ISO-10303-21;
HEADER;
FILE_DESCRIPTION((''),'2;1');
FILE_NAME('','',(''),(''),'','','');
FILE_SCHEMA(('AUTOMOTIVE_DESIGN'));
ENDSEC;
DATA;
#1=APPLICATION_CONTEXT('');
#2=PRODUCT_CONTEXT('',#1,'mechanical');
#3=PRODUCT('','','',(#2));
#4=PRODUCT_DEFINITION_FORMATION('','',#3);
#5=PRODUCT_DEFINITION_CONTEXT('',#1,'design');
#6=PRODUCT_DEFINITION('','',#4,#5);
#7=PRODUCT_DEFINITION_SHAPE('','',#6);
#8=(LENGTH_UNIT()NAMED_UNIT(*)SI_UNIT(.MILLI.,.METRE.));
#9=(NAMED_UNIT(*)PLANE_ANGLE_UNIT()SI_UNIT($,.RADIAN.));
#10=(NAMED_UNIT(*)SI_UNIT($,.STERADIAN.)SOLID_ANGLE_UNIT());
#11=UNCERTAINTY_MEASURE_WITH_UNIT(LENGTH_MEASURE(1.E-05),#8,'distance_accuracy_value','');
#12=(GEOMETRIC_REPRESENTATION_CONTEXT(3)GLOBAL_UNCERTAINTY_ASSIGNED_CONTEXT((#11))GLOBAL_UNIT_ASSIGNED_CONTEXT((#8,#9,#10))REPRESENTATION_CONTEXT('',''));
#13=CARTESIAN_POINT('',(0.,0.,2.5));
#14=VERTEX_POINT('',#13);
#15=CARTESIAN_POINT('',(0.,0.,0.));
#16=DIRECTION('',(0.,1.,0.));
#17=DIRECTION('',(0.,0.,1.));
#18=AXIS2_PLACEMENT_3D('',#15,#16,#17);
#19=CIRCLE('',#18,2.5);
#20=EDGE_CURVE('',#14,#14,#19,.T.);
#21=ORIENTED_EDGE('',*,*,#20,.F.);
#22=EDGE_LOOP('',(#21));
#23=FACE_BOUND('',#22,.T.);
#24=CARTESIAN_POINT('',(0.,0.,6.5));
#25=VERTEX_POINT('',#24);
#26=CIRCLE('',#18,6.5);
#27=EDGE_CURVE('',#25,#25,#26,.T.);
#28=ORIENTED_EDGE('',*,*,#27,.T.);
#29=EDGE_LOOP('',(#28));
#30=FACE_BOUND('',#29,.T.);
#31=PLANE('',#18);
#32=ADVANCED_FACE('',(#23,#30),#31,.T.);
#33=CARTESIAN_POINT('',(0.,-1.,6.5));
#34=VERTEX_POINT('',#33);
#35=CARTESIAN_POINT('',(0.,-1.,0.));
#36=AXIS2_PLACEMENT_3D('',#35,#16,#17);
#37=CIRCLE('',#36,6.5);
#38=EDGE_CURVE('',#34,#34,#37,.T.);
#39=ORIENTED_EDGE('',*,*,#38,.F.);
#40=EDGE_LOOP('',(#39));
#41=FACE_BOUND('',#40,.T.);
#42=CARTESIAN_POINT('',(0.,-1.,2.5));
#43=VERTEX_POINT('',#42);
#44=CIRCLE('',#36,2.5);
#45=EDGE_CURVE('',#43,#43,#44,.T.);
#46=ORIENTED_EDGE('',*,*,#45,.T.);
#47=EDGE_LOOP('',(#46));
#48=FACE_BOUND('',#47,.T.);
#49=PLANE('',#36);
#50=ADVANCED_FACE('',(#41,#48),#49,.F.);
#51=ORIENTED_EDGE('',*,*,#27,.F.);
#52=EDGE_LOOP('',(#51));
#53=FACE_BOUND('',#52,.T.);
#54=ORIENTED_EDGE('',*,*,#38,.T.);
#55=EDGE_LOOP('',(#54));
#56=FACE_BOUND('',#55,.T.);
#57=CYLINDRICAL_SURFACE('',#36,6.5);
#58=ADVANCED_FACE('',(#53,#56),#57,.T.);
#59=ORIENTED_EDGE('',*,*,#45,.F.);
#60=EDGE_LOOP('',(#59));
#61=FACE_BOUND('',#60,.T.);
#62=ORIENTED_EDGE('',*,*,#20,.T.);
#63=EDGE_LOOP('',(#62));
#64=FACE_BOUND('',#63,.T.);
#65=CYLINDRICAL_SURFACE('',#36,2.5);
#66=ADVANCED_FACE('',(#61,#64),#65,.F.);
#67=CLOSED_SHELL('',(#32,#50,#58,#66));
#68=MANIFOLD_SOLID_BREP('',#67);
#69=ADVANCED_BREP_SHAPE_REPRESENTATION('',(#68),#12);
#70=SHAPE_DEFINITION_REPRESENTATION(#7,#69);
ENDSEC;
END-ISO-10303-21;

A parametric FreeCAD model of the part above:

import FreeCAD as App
import Part
import Sketcher
from FreeCAD import Vector

doc = App.newDocument("Part")
body = doc.addObject("PartDesign::Body", "Body")

sketch1 = doc.addObject("Sketcher::SketchObject", "Sketch")
body.addObject(sketch1)
sketch1.AttachmentSupport = (doc.XZ_Plane, [""])
sketch1.MapMode = "FlatFace"
sketch1.addGeometry([
    Part.Circle(Vector(0, 0, 0), Vector(0, 0, 1), 6.5),
    Part.Circle(Vector(0, 0, 0), Vector(0, 0, 1), 2.5),
], False)
sketch1.addConstraint([
    Sketcher.Constraint("Coincident", 0, 3, -1, 1),
    Sketcher.Constraint("Coincident", 1, 3, -1, 1),
    Sketcher.Constraint("Diameter", 0, 13.0),
    Sketcher.Constraint("Diameter", 1, 5.0),
])
pad1 = doc.addObject("PartDesign::Pad", "Pad")
body.addObject(pad1)
pad1.Profile = sketch1
pad1.Length = 1

doc.recompute()
